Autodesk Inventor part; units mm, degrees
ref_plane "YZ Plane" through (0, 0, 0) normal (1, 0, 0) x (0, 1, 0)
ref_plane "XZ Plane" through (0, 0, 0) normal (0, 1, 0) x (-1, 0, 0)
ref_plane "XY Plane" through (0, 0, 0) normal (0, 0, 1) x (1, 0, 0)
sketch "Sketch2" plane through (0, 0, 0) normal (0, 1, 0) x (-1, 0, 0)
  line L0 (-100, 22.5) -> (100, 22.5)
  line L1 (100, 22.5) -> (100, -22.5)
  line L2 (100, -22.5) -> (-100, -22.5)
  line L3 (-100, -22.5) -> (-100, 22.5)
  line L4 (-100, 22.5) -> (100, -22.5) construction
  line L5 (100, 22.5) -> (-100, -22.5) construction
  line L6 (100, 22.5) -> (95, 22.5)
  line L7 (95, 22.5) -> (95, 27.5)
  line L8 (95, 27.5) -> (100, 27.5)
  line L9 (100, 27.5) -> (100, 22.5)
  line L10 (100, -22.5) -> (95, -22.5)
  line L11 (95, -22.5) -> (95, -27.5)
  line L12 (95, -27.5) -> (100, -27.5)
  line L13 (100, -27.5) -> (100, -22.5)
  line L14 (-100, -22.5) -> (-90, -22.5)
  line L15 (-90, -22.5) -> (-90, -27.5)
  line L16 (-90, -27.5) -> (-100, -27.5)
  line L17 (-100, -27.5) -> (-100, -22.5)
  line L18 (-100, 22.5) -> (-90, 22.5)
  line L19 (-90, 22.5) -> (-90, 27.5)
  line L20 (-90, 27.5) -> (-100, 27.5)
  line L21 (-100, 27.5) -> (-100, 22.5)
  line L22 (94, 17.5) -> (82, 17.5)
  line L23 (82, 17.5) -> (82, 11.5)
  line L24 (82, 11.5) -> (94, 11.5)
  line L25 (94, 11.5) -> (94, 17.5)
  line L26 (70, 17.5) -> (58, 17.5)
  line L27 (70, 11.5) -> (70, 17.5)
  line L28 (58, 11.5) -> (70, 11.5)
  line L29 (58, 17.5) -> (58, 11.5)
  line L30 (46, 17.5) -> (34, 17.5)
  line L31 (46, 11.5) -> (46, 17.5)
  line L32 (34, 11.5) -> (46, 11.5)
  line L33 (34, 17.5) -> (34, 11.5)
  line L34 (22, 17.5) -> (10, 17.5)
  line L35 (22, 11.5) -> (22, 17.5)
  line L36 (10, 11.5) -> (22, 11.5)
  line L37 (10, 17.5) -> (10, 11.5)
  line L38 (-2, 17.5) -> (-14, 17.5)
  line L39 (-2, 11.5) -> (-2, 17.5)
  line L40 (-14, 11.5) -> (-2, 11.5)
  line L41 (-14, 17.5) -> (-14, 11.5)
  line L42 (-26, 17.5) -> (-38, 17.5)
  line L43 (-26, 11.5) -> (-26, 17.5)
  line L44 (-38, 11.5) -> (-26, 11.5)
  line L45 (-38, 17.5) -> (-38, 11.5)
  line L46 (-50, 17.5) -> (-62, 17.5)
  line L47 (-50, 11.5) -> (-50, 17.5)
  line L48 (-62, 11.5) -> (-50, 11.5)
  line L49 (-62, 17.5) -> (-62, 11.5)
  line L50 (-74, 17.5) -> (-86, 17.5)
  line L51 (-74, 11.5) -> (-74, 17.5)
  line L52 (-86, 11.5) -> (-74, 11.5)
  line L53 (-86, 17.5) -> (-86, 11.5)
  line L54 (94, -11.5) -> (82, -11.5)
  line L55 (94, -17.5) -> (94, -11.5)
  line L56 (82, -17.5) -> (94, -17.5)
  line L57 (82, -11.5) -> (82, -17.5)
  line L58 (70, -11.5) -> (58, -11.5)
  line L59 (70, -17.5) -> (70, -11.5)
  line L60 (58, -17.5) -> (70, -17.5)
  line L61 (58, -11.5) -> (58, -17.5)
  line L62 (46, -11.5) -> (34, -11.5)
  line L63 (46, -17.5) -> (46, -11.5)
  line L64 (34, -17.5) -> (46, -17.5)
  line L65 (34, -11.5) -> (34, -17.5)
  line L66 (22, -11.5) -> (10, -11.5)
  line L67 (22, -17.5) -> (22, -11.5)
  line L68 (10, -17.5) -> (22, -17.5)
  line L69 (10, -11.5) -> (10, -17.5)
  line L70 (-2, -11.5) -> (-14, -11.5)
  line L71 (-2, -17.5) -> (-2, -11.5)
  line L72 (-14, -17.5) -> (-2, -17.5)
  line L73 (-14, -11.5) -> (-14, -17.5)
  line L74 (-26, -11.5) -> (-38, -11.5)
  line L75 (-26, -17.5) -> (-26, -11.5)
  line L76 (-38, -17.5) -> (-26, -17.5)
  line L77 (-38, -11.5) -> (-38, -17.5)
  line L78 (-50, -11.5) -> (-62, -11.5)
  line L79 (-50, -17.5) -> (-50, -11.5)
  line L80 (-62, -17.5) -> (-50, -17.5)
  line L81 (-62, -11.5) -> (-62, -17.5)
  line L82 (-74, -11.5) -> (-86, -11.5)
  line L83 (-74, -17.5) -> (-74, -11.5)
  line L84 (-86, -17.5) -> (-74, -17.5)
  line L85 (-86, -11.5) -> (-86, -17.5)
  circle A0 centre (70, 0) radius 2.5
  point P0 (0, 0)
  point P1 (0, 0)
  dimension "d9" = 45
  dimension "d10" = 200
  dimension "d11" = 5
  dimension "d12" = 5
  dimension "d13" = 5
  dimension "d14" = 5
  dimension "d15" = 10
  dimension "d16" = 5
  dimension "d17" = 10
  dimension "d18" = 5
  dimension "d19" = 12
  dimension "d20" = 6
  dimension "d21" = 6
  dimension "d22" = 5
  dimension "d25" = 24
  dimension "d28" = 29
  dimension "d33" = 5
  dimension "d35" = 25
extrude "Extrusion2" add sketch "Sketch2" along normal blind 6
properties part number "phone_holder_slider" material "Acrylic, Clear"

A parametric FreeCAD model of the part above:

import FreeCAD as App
import Part
import Sketcher
from FreeCAD import Vector

doc = App.newDocument("Part")
body = doc.addObject("PartDesign::Body", "Body")

# Sketch on XZ plane
sketch1 = body.newObject("Sketcher::SketchObject", "Sketch")
sketch1.AttachmentSupport = (doc.getObject("XZ_Plane"), [""])
sketch1.MapMode = "FlatFace"
sketch1.addGeometry(Part.LineSegment(Vector(100, 27.5, 0), Vector(100, -27.5, 0)), False)
sketch1.addGeometry(Part.LineSegment(Vector(100, -27.5, 0), Vector(90, -27.5, 0)), False)
sketch1.addGeometry(Part.LineSegment(Vector(90, -27.5, 0), Vector(90, -22.5, 0)), False)
sketch1.addGeometry(Part.LineSegment(Vector(90, -22.5, 0), Vector(-95, -22.5, 0)), False)
sketch1.addGeometry(Part.LineSegment(Vector(-95, -22.5, 0), Vector(-95, -27.5, 0)), False)
sketch1.addGeometry(Part.LineSegment(Vector(-95, -27.5, 0), Vector(-100, -27.5, 0)), False)
sketch1.addGeometry(Part.LineSegment(Vector(-100, -27.5, 0), Vector(-100, 27.5, 0)), False)
sketch1.addGeometry(Part.LineSegment(Vector(-100, 27.5, 0), Vector(-95, 27.5, 0)), False)
sketch1.addGeometry(Part.LineSegment(Vector(-95, 27.5, 0), Vector(-95, 22.5, 0)), False)
sketch1.addGeometry(Part.LineSegment(Vector(-95, 22.5, 0), Vector(90, 22.5, 0)), False)
sketch1.addGeometry(Part.LineSegment(Vector(90, 22.5, 0), Vector(90, 27.5, 0)), False)
sketch1.addGeometry(Part.LineSegment(Vector(90, 27.5, 0), Vector(100, 27.5, 0)), False)
sketch1.addGeometry(Part.LineSegment(Vector(-94, 17.5, 0), Vector(-94, 11.5, 0)), False)
sketch1.addGeometry(Part.LineSegment(Vector(-94, 11.5, 0), Vector(-82, 11.5, 0)), False)
sketch1.addGeometry(Part.LineSegment(Vector(-82, 11.5, 0), Vector(-82, 17.5, 0)), False)
sketch1.addGeometry(Part.LineSegment(Vector(-82, 17.5, 0), Vector(-94, 17.5, 0)), False)
sketch1.addGeometry(Part.LineSegment(Vector(86, -11.5, 0), Vector(74, -11.5, 0)), False)
sketch1.addGeometry(Part.LineSegment(Vector(74, -11.5, 0), Vector(74, -17.5, 0)), False)
sketch1.addGeometry(Part.LineSegment(Vector(74, -17.5, 0), Vector(86, -17.5, 0)), False)
sketch1.addGeometry(Part.LineSegment(Vector(86, -17.5, 0), Vector(86, -11.5, 0)), False)
sketch1.addGeometry(Part.LineSegment(Vector(62, -11.5, 0), Vector(50, -11.5, 0)), False)
sketch1.addGeometry(Part.LineSegment(Vector(50, -11.5, 0), Vector(50, -17.5, 0)), False)
sketch1.addGeometry(Part.LineSegment(Vector(50, -17.5, 0), Vector(62, -17.5, 0)), False)
sketch1.addGeometry(Part.LineSegment(Vector(62, -17.5, 0), Vector(62, -11.5, 0)), False)
sketch1.addGeometry(Part.LineSegment(Vector(38, -11.5, 0), Vector(26, -11.5, 0)), False)
sketch1.addGeometry(Part.LineSegment(Vector(26, -11.5, 0), Vector(26, -17.5, 0)), False)
sketch1.addGeometry(Part.LineSegment(Vector(26, -17.5, 0), Vector(38, -17.5, 0)), False)
sketch1.addGeometry(Part.LineSegment(Vector(38, -17.5, 0), Vector(38, -11.5, 0)), False)
sketch1.addGeometry(Part.LineSegment(Vector(14, -11.5, 0), Vector(2, -11.5, 0)), False)
sketch1.addGeometry(Part.LineSegment(Vector(2, -11.5, 0), Vector(2, -17.5, 0)), False)
sketch1.addGeometry(Part.LineSegment(Vector(2, -17.5, 0), Vector(14, -17.5, 0)), False)
sketch1.addGeometry(Part.LineSegment(Vector(14, -17.5, 0), Vector(14, -11.5, 0)), False)
sketch1.addGeometry(Part.LineSegment(Vector(-10, -11.5, 0), Vector(-22, -11.5, 0)), False)
sketch1.addGeometry(Part.LineSegment(Vector(-22, -11.5, 0), Vector(-22, -17.5, 0)), False)
sketch1.addGeometry(Part.LineSegment(Vector(-22, -17.5, 0), Vector(-10, -17.5, 0)), False)
sketch1.addGeometry(Part.LineSegment(Vector(-10, -17.5, 0), Vector(-10, -11.5, 0)), False)
sketch1.addGeometry(Part.LineSegment(Vector(-34, -11.5, 0), Vector(-46, -11.5, 0)), False)
sketch1.addGeometry(Part.LineSegment(Vector(-46, -11.5, 0), Vector(-46, -17.5, 0)), False)
sketch1.addGeometry(Part.LineSegment(Vector(-46, -17.5, 0), Vector(-34, -17.5, 0)), False)
sketch1.addGeometry(Part.LineSegment(Vector(-34, -17.5, 0), Vector(-34, -11.5, 0)), False)
sketch1.addGeometry(Part.LineSegment(Vector(-58, -11.5, 0), Vector(-70, -11.5, 0)), False)
sketch1.addGeometry(Part.LineSegment(Vector(-70, -11.5, 0), Vector(-70, -17.5, 0)), False)
sketch1.addGeometry(Part.LineSegment(Vector(-70, -17.5, 0), Vector(-58, -17.5, 0)), False)
sketch1.addGeometry(Part.LineSegment(Vector(-58, -17.5, 0), Vector(-58, -11.5, 0)), False)
sketch1.addGeometry(Part.LineSegment(Vector(-82, -11.5, 0), Vector(-94, -11.5, 0)), False)
sketch1.addGeometry(Part.LineSegment(Vector(-94, -11.5, 0), Vector(-94, -17.5, 0)), False)
sketch1.addGeometry(Part.LineSegment(Vector(-94, -17.5, 0), Vector(-82, -17.5, 0)), False)
sketch1.addGeometry(Part.LineSegment(Vector(-82, -17.5, 0), Vector(-82, -11.5, 0)), False)
sketch1.addGeometry(Part.LineSegment(Vector(86, 17.5, 0), Vector(74, 17.5, 0)), False)
sketch1.addGeometry(Part.LineSegment(Vector(74, 17.5, 0), Vector(74, 11.5, 0)), False)
sketch1.addGeometry(Part.LineSegment(Vector(74, 11.5, 0), Vector(86, 11.5, 0)), False)
sketch1.addGeometry(Part.LineSegment(Vector(86, 11.5, 0), Vector(86, 17.5, 0)), False)
sketch1.addGeometry(Part.LineSegment(Vector(62, 17.5, 0), Vector(50, 17.5, 0)), False)
sketch1.addGeometry(Part.LineSegment(Vector(50, 17.5, 0), Vector(50, 11.5, 0)), False)
sketch1.addGeometry(Part.LineSegment(Vector(50, 11.5, 0), Vector(62, 11.5, 0)), False)
sketch1.addGeometry(Part.LineSegment(Vector(62, 11.5, 0), Vector(62, 17.5, 0)), False)
sketch1.addGeometry(Part.LineSegment(Vector(38, 17.5, 0), Vector(26, 17.5, 0)), False)
sketch1.addGeometry(Part.LineSegment(Vector(26, 17.5, 0), Vector(26, 11.5, 0)), False)
sketch1.addGeometry(Part.LineSegment(Vector(26, 11.5, 0), Vector(38, 11.5, 0)), False)
sketch1.addGeometry(Part.LineSegment(Vector(38, 11.5, 0), Vector(38, 17.5, 0)), False)
sketch1.addGeometry(Part.LineSegment(Vector(14, 17.5, 0), Vector(2, 17.5, 0)), False)
sketch1.addGeometry(Part.LineSegment(Vector(2, 17.5, 0), Vector(2, 11.5, 0)), False)
sketch1.addGeometry(Part.LineSegment(Vector(2, 11.5, 0), Vector(14, 11.5, 0)), False)
sketch1.addGeometry(Part.LineSegment(Vector(14, 11.5, 0), Vector(14, 17.5, 0)), False)
sketch1.addGeometry(Part.Circle(Vector(-70, 0, 0), Vector(0, 0, 1), 2.5), False)
sketch1.addGeometry(Part.LineSegment(Vector(-10, 17.5, 0), Vector(-22, 17.5, 0)), False)
sketch1.addGeometry(Part.LineSegment(Vector(-22, 17.5, 0), Vector(-22, 11.5, 0)), False)
sketch1.addGeometry(Part.LineSegment(Vector(-22, 11.5, 0), Vector(-10, 11.5, 0)), False)
sketch1.addGeometry(Part.LineSegment(Vector(-10, 11.5, 0), Vector(-10, 17.5, 0)), False)
sketch1.addGeometry(Part.LineSegment(Vector(-34, 17.5, 0), Vector(-46, 17.5, 0)), False)
sketch1.addGeometry(Part.LineSegment(Vector(-46, 17.5, 0), Vector(-46, 11.5, 0)), False)
sketch1.addGeometry(Part.LineSegment(Vector(-46, 11.5, 0), Vector(-34, 11.5, 0)), False)
sketch1.addGeometry(Part.LineSegment(Vector(-34, 11.5, 0), Vector(-34, 17.5, 0)), False)
sketch1.addGeometry(Part.LineSegment(Vector(-58, 17.5, 0), Vector(-70, 17.5, 0)), False)
sketch1.addGeometry(Part.LineSegment(Vector(-70, 17.5, 0), Vector(-70, 11.5, 0)), False)
sketch1.addGeometry(Part.LineSegment(Vector(-70, 11.5, 0), Vector(-58, 11.5, 0)), False)
sketch1.addGeometry(Part.LineSegment(Vector(-58, 11.5, 0), Vector(-58, 17.5, 0)), False)
sketch1.addConstraint(Sketcher.Constraint("Coincident", 0, 2, 1, 1))
sketch1.addConstraint(Sketcher.Constraint("Coincident", 1, 2, 2, 1))
sketch1.addConstraint(Sketcher.Constraint("Coincident", 2, 2, 3, 1))
sketch1.addConstraint(Sketcher.Constraint("Coincident", 3, 2, 4, 1))
sketch1.addConstraint(Sketcher.Constraint("Coincident", 4, 2, 5, 1))
sketch1.addConstraint(Sketcher.Constraint("Coincident", 5, 2, 6, 1))
sketch1.addConstraint(Sketcher.Constraint("Coincident", 6, 2, 7, 1))
sketch1.addConstraint(Sketcher.Constraint("Coincident", 7, 2, 8, 1))
sketch1.addConstraint(Sketcher.Constraint("Coincident", 8, 2, 9, 1))
sketch1.addConstraint(Sketcher.Constraint("Coincident", 9, 2, 10, 1))
sketch1.addConstraint(Sketcher.Constraint("Coincident", 10, 2, 11, 1))
sketch1.addConstraint(Sketcher.Constraint("Coincident", 11, 2, 0, 1))
sketch1.addConstraint(Sketcher.Constraint("Coincident", 12, 2, 13, 1))
sketch1.addConstraint(Sketcher.Constraint("Coincident", 13, 2, 14, 1))
sketch1.addConstraint(Sketcher.Constraint("Coincident", 14, 2, 15, 1))
sketch1.addConstraint(Sketcher.Constraint("Coincident", 15, 2, 12, 1))
sketch1.addConstraint(Sketcher.Constraint("Coincident", 16, 2, 17, 1))
sketch1.addConstraint(Sketcher.Constraint("Coincident", 17, 2, 18, 1))
sketch1.addConstraint(Sketcher.Constraint("Coincident", 18, 2, 19, 1))
sketch1.addConstraint(Sketcher.Constraint("Coincident", 19, 2, 16, 1))
sketch1.addConstraint(Sketcher.Constraint("Coincident", 20, 2, 21, 1))
sketch1.addConstraint(Sketcher.Constraint("Coincident", 21, 2, 22, 1))
sketch1.addConstraint(Sketcher.Constraint("Coincident", 22, 2, 23, 1))
sketch1.addConstraint(Sketcher.Constraint("Coincident", 23, 2, 20, 1))
sketch1.addConstraint(Sketcher.Constraint("Coincident", 24, 2, 25, 1))
sketch1.addConstraint(Sketcher.Constraint("Coincident", 25, 2, 26, 1))
sketch1.addConstraint(Sketcher.Constraint("Coincident", 26, 2, 27, 1))
sketch1.addConstraint(Sketcher.Constraint("Coincident", 27, 2, 24, 1))
sketch1.addConstraint(Sketcher.Constraint("Coincident", 28, 2, 29, 1))
sketch1.addConstraint(Sketcher.Constraint("Coincident", 29, 2, 30, 1))
sketch1.addConstraint(Sketcher.Constraint("Coincident", 30, 2, 31, 1))
sketch1.addConstraint(Sketcher.Constraint("Coincident", 31, 2, 28, 1))
sketch1.addConstraint(Sketcher.Constraint("Coincident", 32, 2, 33, 1))
sketch1.addConstraint(Sketcher.Constraint("Coincident", 33, 2, 34, 1))
sketch1.addConstraint(Sketcher.Constraint("Coincident", 34, 2, 35, 1))
sketch1.addConstraint(Sketcher.Constraint("Coincident", 35, 2, 32, 1))
sketch1.addConstraint(Sketcher.Constraint("Coincident", 36, 2, 37, 1))
sketch1.addConstraint(Sketcher.Constraint("Coincident", 37, 2, 38, 1))
sketch1.addConstraint(Sketcher.Constraint("Coincident", 38, 2, 39, 1))
sketch1.addConstraint(Sketcher.Constraint("Coincident", 39, 2, 36, 1))
sketch1.addConstraint(Sketcher.Constraint("Coincident", 40, 2, 41, 1))
sketch1.addConstraint(Sketcher.Constraint("Coincident", 41, 2, 42, 1))
sketch1.addConstraint(Sketcher.Constraint("Coincident", 42, 2, 43, 1))
sketch1.addConstraint(Sketcher.Constraint("Coincident", 43, 2, 40, 1))
sketch1.addConstraint(Sketcher.Constraint("Coincident", 44, 2, 45, 1))
sketch1.addConstraint(Sketcher.Constraint("Coincident", 45, 2, 46, 1))
sketch1.addConstraint(Sketcher.Constraint("Coincident", 46, 2, 47, 1))
sketch1.addConstraint(Sketcher.Constraint("Coincident", 47, 2, 44, 1))
sketch1.addConstraint(Sketcher.Constraint("Coincident", 48, 2, 49, 1))
sketch1.addConstraint(Sketcher.Constraint("Coincident", 49, 2, 50, 1))
sketch1.addConstraint(Sketcher.Constraint("Coincident", 50, 2, 51, 1))
sketch1.addConstraint(Sketcher.Constraint("Coincident", 51, 2, 48, 1))
sketch1.addConstraint(Sketcher.Constraint("Coincident", 52, 2, 53, 1))
sketch1.addConstraint(Sketcher.Constraint("Coincident", 53, 2, 54, 1))
sketch1.addConstraint(Sketcher.Constraint("Coincident", 54, 2, 55, 1))
sketch1.addConstraint(Sketcher.Constraint("Coincident", 55, 2, 52, 1))
sketch1.addConstraint(Sketcher.Constraint("Coincident", 56, 2, 57, 1))
sketch1.addConstraint(Sketcher.Constraint("Coincident", 57, 2, 58, 1))
sketch1.addConstraint(Sketcher.Constraint("Coincident", 58, 2, 59, 1))
sketch1.addConstraint(Sketcher.Constraint("Coincident", 59, 2, 56, 1))
sketch1.addConstraint(Sketcher.Constraint("Coincident", 60, 2, 61, 1))
sketch1.addConstraint(Sketcher.Constraint("Coincident", 61, 2, 62, 1))
sketch1.addConstraint(Sketcher.Constraint("Coincident", 62, 2, 63, 1))
sketch1.addConstraint(Sketcher.Constraint("Coincident", 63, 2, 60, 1))
sketch1.addConstraint(Sketcher.Constraint("Coincident", 65, 2, 66, 1))
sketch1.addConstraint(Sketcher.Constraint("Coincident", 66, 2, 67, 1))
sketch1.addConstraint(Sketcher.Constraint("Coincident", 67, 2, 68, 1))
sketch1.addConstraint(Sketcher.Constraint("Coincident", 68, 2, 65, 1))
sketch1.addConstraint(Sketcher.Constraint("Coincident", 69, 2, 70, 1))
sketch1.addConstraint(Sketcher.Constraint("Coincident", 70, 2, 71, 1))
sketch1.addConstraint(Sketcher.Constraint("Coincident", 71, 2, 72, 1))
sketch1.addConstraint(Sketcher.Constraint("Coincident", 72, 2, 69, 1))
sketch1.addConstraint(Sketcher.Constraint("Coincident", 73, 2, 74, 1))
sketch1.addConstraint(Sketcher.Constraint("Coincident", 74, 2, 75, 1))
sketch1.addConstraint(Sketcher.Constraint("Coincident", 75, 2, 76, 1))
sketch1.addConstraint(Sketcher.Constraint("Coincident", 76, 2, 73, 1))
sketch1.addConstraint(Sketcher.Constraint("Vertical", 0))
sketch1.addConstraint(Sketcher.Constraint("Horizontal", 1))
sketch1.addConstraint(Sketcher.Constraint("Vertical", 2))
sketch1.addConstraint(Sketcher.Constraint("Horizontal", 3))
sketch1.addConstraint(Sketcher.Constraint("Vertical", 4))
sketch1.addConstraint(Sketcher.Constraint("Horizontal", 5))
sketch1.addConstraint(Sketcher.Constraint("Vertical", 6))
sketch1.addConstraint(Sketcher.Constraint("Horizontal", 7))
sketch1.addConstraint(Sketcher.Constraint("Vertical", 8))
sketch1.addConstraint(Sketcher.Constraint("Horizontal", 9))
sketch1.addConstraint(Sketcher.Constraint("Vertical", 10))
sketch1.addConstraint(Sketcher.Constraint("Horizontal", 11))
sketch1.addConstraint(Sketcher.Constraint("Vertical", 12))
sketch1.addConstraint(Sketcher.Constraint("Horizontal", 13))
sketch1.addConstraint(Sketcher.Constraint("Vertical", 14))
sketch1.addConstraint(Sketcher.Constraint("Horizontal", 15))
sketch1.addConstraint(Sketcher.Constraint("Horizontal", 16))
sketch1.addConstraint(Sketcher.Constraint("Vertical", 17))
sketch1.addConstraint(Sketcher.Constraint("Horizontal", 18))
sketch1.addConstraint(Sketcher.Constraint("Vertical", 19))
sketch1.addConstraint(Sketcher.Constraint("Horizontal", 20))
sketch1.addConstraint(Sketcher.Constraint("Vertical", 21))
sketch1.addConstraint(Sketcher.Constraint("Horizontal", 22))
sketch1.addConstraint(Sketcher.Constraint("Vertical", 23))
sketch1.addConstraint(Sketcher.Constraint("Horizontal", 24))
sketch1.addConstraint(Sketcher.Constraint("Vertical", 25))
sketch1.addConstraint(Sketcher.Constraint("Horizontal", 26))
sketch1.addConstraint(Sketcher.Constraint("Vertical", 27))
sketch1.addConstraint(Sketcher.Constraint("Horizontal", 28))
sketch1.addConstraint(Sketcher.Constraint("Vertical", 29))
sketch1.addConstraint(Sketcher.Constraint("Horizontal", 30))
sketch1.addConstraint(Sketcher.Constraint("Vertical", 31))
sketch1.addConstraint(Sketcher.Constraint("Horizontal", 32))
sketch1.addConstraint(Sketcher.Constraint("Vertical", 33))
sketch1.addConstraint(Sketcher.Constraint("Horizontal", 34))
sketch1.addConstraint(Sketcher.Constraint("Vertical", 35))
sketch1.addConstraint(Sketcher.Constraint("Horizontal", 36))
sketch1.addConstraint(Sketcher.Constraint("Vertical", 37))
sketch1.addConstraint(Sketcher.Constraint("Horizontal", 38))
sketch1.addConstraint(Sketcher.Constraint("Vertical", 39))
sketch1.addConstraint(Sketcher.Constraint("Horizontal", 40))
sketch1.addConstraint(Sketcher.Constraint("Vertical", 41))
sketch1.addConstraint(Sketcher.Constraint("Horizontal", 42))
sketch1.addConstraint(Sketcher.Constraint("Vertical", 43))
sketch1.addConstraint(Sketcher.Constraint("Horizontal", 44))
sketch1.addConstraint(Sketcher.Constraint("Vertical", 45))
sketch1.addConstraint(Sketcher.Constraint("Horizontal", 46))
sketch1.addConstraint(Sketcher.Constraint("Vertical", 47))
sketch1.addConstraint(Sketcher.Constraint("Horizontal", 48))
sketch1.addConstraint(Sketcher.Constraint("Vertical", 49))
sketch1.addConstraint(Sketcher.Constraint("Horizontal", 50))
sketch1.addConstraint(Sketcher.Constraint("Vertical", 51))
sketch1.addConstraint(Sketcher.Constraint("Horizontal", 52))
sketch1.addConstraint(Sketcher.Constraint("Vertical", 53))
sketch1.addConstraint(Sketcher.Constraint("Horizontal", 54))
sketch1.addConstraint(Sketcher.Constraint("Vertical", 55))
sketch1.addConstraint(Sketcher.Constraint("Horizontal", 56))
sketch1.addConstraint(Sketcher.Constraint("Vertical", 57))
sketch1.addConstraint(Sketcher.Constraint("Horizontal", 58))
sketch1.addConstraint(Sketcher.Constraint("Vertical", 59))
sketch1.addConstraint(Sketcher.Constraint("Horizontal", 60))
sketch1.addConstraint(Sketcher.Constraint("Vertical", 61))
sketch1.addConstraint(Sketcher.Constraint("Horizontal", 62))
sketch1.addConstraint(Sketcher.Constraint("Vertical", 63))
sketch1.addConstraint(Sketcher.Constraint("Horizontal", 65))
sketch1.addConstraint(Sketcher.Constraint("Vertical", 66))
sketch1.addConstraint(Sketcher.Constraint("Horizontal", 67))
sketch1.addConstraint(Sketcher.Constraint("Vertical", 68))
sketch1.addConstraint(Sketcher.Constraint("Horizontal", 69))
sketch1.addConstraint(Sketcher.Constraint("Vertical", 70))
sketch1.addConstraint(Sketcher.Constraint("Horizontal", 71))
sketch1.addConstraint(Sketcher.Constraint("Vertical", 72))
sketch1.addConstraint(Sketcher.Constraint("Horizontal", 73))
sketch1.addConstraint(Sketcher.Constraint("Vertical", 74))
sketch1.addConstraint(Sketcher.Constraint("Horizontal", 75))
sketch1.addConstraint(Sketcher.Constraint("Vertical", 76))
sketch1.addConstraint(Sketcher.Constraint("Symmetric", 0, 2, 6, 2, -1, 1))
sketch1.addConstraint(Sketcher.Constraint("Symmetric", 4, 2, 7, 2, -1))
sketch1.addConstraint(Sketcher.Constraint("Symmetric", 2, 2, 9, 2, -1))
sketch1.addConstraint(Sketcher.Constraint("Symmetric", 12, 2, 44, 2, -1))
sketch1.addConstraint(Sketcher.Constraint("Symmetric", 14, 2, 46, 2, -1))
sketch1.addConstraint(Sketcher.Constraint("Symmetric", 17, 2, 48, 2, -1))
sketch1.addConstraint(Sketcher.Constraint("Symmetric", 19, 2, 50, 2, -1))
sketch1.addConstraint(Sketcher.Constraint("Symmetric", 21, 2, 52, 2, -1))
sketch1.addConstraint(Sketcher.Constraint("Symmetric", 23, 2, 54, 2, -1))
sketch1.addConstraint(Sketcher.Constraint("Symmetric", 25, 2, 56, 2, -1))
sketch1.addConstraint(Sketcher.Constraint("Symmetric", 27, 2, 58, 2, -1))
sketch1.addConstraint(Sketcher.Constraint("Symmetric", 29, 2, 60, 2, -1))
sketch1.addConstraint(Sketcher.Constraint("Symmetric", 31, 2, 62, 2, -1))
sketch1.addConstraint(Sketcher.Constraint("Symmetric", 33, 2, 65, 2, -1))
sketch1.addConstraint(Sketcher.Constraint("Symmetric", 35, 2, 67, 2, -1))
sketch1.addConstraint(Sketcher.Constraint("Symmetric", 37, 2, 69, 2, -1))
sketch1.addConstraint(Sketcher.Constraint("Symmetric", 39, 2, 71, 2, -1))
sketch1.addConstraint(Sketcher.Constraint("Symmetric", 41, 2, 73, 2, -1))
sketch1.addConstraint(Sketcher.Constraint("Symmetric", 43, 2, 75, 2, -1))
sketch1.addConstraint(Sketcher.Constraint("PointOnObject", 64, 3, -1))
sketch1.addConstraint(Sketcher.Constraint("Horizontal", 7, 2, 10, 2))
sketch1.addConstraint(Sketcher.Constraint("Horizontal", 19, 2, 20, 2))
sketch1.addConstraint(Sketcher.Constraint("Horizontal", 18, 2, 21, 2))
sketch1.addConstraint(Sketcher.Constraint("Horizontal", 23, 2, 24, 2))
sketch1.addConstraint(Sketcher.Constraint("Horizontal", 22, 2, 25, 2))
sketch1.addConstraint(Sketcher.Constraint("Horizontal", 27, 2, 28, 2))
sketch1.addConstraint(Sketcher.Constraint("Horizontal", 26, 2, 29, 2))
sketch1.addConstraint(Sketcher.Constraint("Horizontal", 31, 2, 32, 2))
sketch1.addConstraint(Sketcher.Constraint("Horizontal", 30, 2, 33, 2))
sketch1.addConstraint(Sketcher.Constraint("Horizontal", 35, 2, 36, 2))
sketch1.addConstraint(Sketcher.Constraint("Horizontal", 34, 2, 37, 2))
sketch1.addConstraint(Sketcher.Constraint("Horizontal", 39, 2, 40, 2))
sketch1.addConstraint(Sketcher.Constraint("Horizontal", 38, 2, 41, 2))
sketch1.addConstraint(Sketcher.Constraint("Horizontal", 43, 2, 44, 2))
sketch1.addConstraint(Sketcher.Constraint("Horizontal", 42, 2, 45, 2))
sketch1.addConstraint(Sketcher.Constraint("Vertical", 64, 3, 40, 2))
sketch1.addConstraint(Sketcher.Constraint("Equal", 15, 16))
sketch1.addConstraint(Sketcher.Constraint("Equal", 18, 20))
sketch1.addConstraint(Sketcher.Constraint("Equal", 22, 24))
sketch1.addConstraint(Sketcher.Constraint("Equal", 26, 28))
sketch1.addConstraint(Sketcher.Constraint("Equal", 30, 32))
sketch1.addConstraint(Sketcher.Constraint("Equal", 34, 36))
sketch1.addConstraint(Sketcher.Constraint("Equal", 38, 40))
sketch1.addConstraint(Sketcher.Constraint("Equal", 7, 2))
sketch1.addConstraint(Sketcher.Constraint("Diameter", 64, 5.0))
sketch1.addConstraint(Sketcher.Constraint("DistanceX", 1, 2, 1, 1, 10.0))
sketch1.addConstraint(Sketcher.Constraint("DistanceX", 5, 2, 5, 1, 5.0))
sketch1.addConstraint(Sketcher.Constraint("DistanceX", 13, 1, 13, 2, 12.0))
sketch1.addConstraint(Sketcher.Constraint("DistanceY", 12, 2, 12, 1, 6.0))
sketch1.addConstraint(Sketcher.Constraint("DistanceX", 34, 2, -1, 1, 10.0))
sketch1.addConstraint(Sketcher.Constraint("DistanceX", 3, 2, 3, 1, 185.0))
sketch1.addConstraint(Sketcher.Constraint("DistanceY", 0, 2, 0, 1, 55.0))
sketch1.addConstraint(Sketcher.Constraint("DistanceX", 64, 3, -1, 1, 70.0))
sketch1.addConstraint(Sketcher.Constraint("DistanceX", 12, 2, -1, 1, 94.0))
sketch1.addConstraint(Sketcher.Constraint("DistanceX", -1, 1, 16, 2, 74.0))
sketch1.addConstraint(Sketcher.Constraint("DistanceX", -1, 1, 20, 2, 50.0))
sketch1.addConstraint(Sketcher.Constraint("DistanceX", -1, 1, 24, 2, 26.0))
sketch1.addConstraint(Sketcher.Constraint("DistanceX", -1, 1, 28, 2, 2.0))
sketch1.addConstraint(Sketcher.Constraint("DistanceX", 36, 2, -1, 1, 46.0))
sketch1.addConstraint(Sketcher.Constraint("DistanceY", -1, 1, 12, 2, 11.5))
pad1 = body.newObject("PartDesign::Pad", "Pad")
pad1.Profile = sketch1
pad1.Length = 6
pad1.Reversed = True

doc.recompute()
